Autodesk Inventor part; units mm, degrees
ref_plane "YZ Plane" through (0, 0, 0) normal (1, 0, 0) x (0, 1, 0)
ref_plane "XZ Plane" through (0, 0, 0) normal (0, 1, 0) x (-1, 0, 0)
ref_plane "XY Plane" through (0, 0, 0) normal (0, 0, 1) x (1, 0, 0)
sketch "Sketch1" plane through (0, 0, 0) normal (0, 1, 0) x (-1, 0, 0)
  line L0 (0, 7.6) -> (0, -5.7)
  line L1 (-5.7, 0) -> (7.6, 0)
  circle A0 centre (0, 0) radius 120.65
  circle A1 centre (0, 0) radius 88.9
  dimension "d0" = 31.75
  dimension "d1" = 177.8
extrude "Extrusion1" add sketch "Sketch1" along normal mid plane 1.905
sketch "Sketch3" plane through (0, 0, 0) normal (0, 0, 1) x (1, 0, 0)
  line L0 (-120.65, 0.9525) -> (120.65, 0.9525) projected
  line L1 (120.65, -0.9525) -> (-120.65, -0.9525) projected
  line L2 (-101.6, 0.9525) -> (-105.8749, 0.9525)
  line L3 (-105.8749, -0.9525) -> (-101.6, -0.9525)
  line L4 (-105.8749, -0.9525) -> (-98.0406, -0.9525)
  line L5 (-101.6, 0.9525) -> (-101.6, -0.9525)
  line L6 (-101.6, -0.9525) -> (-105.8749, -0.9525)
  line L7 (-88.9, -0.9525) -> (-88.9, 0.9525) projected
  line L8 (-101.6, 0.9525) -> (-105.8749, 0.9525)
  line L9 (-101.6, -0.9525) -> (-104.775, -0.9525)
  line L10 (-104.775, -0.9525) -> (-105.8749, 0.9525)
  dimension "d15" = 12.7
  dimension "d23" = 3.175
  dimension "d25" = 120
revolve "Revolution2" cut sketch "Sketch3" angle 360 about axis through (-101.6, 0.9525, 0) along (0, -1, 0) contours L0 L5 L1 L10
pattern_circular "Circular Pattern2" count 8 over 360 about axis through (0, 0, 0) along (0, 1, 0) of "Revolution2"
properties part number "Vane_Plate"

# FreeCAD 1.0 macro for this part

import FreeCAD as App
import Part
import Sketcher

V = App.Vector
Q = App.Units.Quantity


def add_polygon(sketch, points):
    """Adds a closed chain of lines whose ends are joined by coincident constraints."""
    first, n = sketch.GeometryCount, len(points)
    for a, b in zip(points, points[1:] + points[:1]):
        sketch.addGeometry(Part.LineSegment(App.Vector(*a, 0), App.Vector(*b, 0)), False)
    for i in range(n):
        sketch.addConstraint(Sketcher.Constraint("Coincident", first + i, 2, first + (i + 1) % n, 1))

doc = App.newDocument("Part")
body = doc.addObject("PartDesign::Body", "Body")

# Sketch on XZ plane
sketch1 = body.newObject("Sketcher::SketchObject", "Sketch")
sketch1.AttachmentSupport = (doc.getObject("XZ_Plane"), [""])
sketch1.MapMode = "FlatFace"
sketch1.addGeometry(Part.Circle(V(0, 0, 0), V(0, 0, 1), 121), False)
sketch1.addGeometry(Part.Circle(V(0, 0, 0), V(0, 0, 1), 89), False)
sketch1.addConstraint(Sketcher.Constraint("Coincident", 0, 3, -1, 1))
sketch1.addConstraint(Sketcher.Constraint("Coincident", 1, 3, -1, 1))
sketch1.addConstraint(Sketcher.Constraint("Diameter", 1, Q("7 in")))
sketch1.addConstraint(Sketcher.Constraint("Diameter", 0, Q("9.5 in")))
pad1 = body.newObject("PartDesign::Pad", "Pad")
pad1.Profile = sketch1
pad1.Length = Q("0.075 in")
pad1.Midplane = True

# Sketch on XY plane
sketch2 = body.newObject("Sketcher::SketchObject", "Sketch001")
sketch2.AttachmentSupport = (doc.getObject("XY_Plane"), [""])
sketch2.MapMode = "FlatFace"
add_polygon(sketch2, [(-101.6, 1), (-105.9, 1), (-104.8, -1), (-101.6, -1)])  # lines 0-3
sketch2.addGeometry(Part.LineSegment(V(-101.6, 1, 0), V(-101.6, -1, 0)), True)  # axis
sketch2.addConstraint(Sketcher.Constraint("Horizontal", 0))
sketch2.addConstraint(Sketcher.Constraint("Horizontal", 2))
sketch2.addConstraint(Sketcher.Constraint("Vertical", 3))
sketch2.addConstraint(Sketcher.Constraint("Vertical", 4))
sketch2.addConstraint(Sketcher.Constraint("Coincident", 4, 1, 3, 2))
sketch2.addConstraint(Sketcher.Constraint("Horizontal", 1, 2, 4, 2))
sketch2.addConstraint(Sketcher.Constraint("DistanceX", 2, 1, 2, 2, Q("0.125 in")))
sketch2.addConstraint(Sketcher.Constraint("DistanceX", 2, 2, -1, 1, Q("4 in")))
sketch2.addConstraint(Sketcher.Constraint("Angle", 1, Q("-59.999 deg")))
sketch2.addConstraint(Sketcher.Constraint("DistanceY", 3, 1, 3, 2, Q("0.075 in")))
sketch2.addConstraint(Sketcher.Constraint("DistanceY", -1, 1, 0, 2, Q("0.0375 in")))
groove = body.newObject("PartDesign::Groove", "Groove")
groove.Profile = sketch2
groove.ReferenceAxis = (sketch2, ["Axis0"])
groove.Angle = 360
doc.recompute()

polarpattern = body.newObject("PartDesign::PolarPattern", "PolarPattern")
polarpattern.Originals = [groove]
polarpattern.Axis = (doc.getObject("Y_Axis"), [""])
polarpattern.Angle = 360
polarpattern.Occurrences = 8
body.Tip = polarpattern

doc.recompute()
